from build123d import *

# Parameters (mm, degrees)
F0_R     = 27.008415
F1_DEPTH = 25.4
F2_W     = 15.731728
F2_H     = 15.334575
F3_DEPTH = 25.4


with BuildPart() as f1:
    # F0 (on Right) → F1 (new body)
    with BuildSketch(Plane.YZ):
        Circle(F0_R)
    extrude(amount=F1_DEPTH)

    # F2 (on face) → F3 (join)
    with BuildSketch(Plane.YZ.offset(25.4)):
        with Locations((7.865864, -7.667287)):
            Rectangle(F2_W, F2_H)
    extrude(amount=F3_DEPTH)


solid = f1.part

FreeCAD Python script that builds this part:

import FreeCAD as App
import Part
import Sketcher
from FreeCAD import Vector
Q = App.Units.Quantity

doc = App.newDocument("Part")
body = doc.addObject("PartDesign::Body", "Body")

sketch1 = body.newObject("Sketcher::SketchObject", "Sketch")
sketch1.AttachmentSupport = (doc.getObject("YZ_Plane"), [""])
sketch1.MapMode = "FlatFace"
sketch1.addGeometry(Part.Circle(Vector(0, 0, 0), Vector(0, 0, 1), 27.008415), False)
sketch1.addConstraint([
    Sketcher.Constraint("Coincident", 0, 3, -1, 1),
    Sketcher.Constraint("Diameter", 0, 54.01683),
])
pad1 = body.newObject("PartDesign::Pad", "Pad")
pad1.Profile = sketch1
pad1.Length = Q("1 in")

sketch2 = body.newObject("Sketcher::SketchObject", "Sketch001")
sketch2.AttachmentSupport = (doc.getObject("YZ_Plane"), [""])
sketch2.MapMode = "FlatFace"
sketch2.AttachmentOffset = App.Placement(Vector(0, 0, 1 * 25.4), App.Rotation())
sketch2.addGeometry([
    Part.LineSegment(Vector(0, 0, 0), Vector(0, -15.334575, 0)),
    Part.LineSegment(Vector(0, -15.334575, 0), Vector(15.731728, -15.334575, 0)),
    Part.LineSegment(Vector(15.731728, -15.334575, 0), Vector(15.731728, 0, 0)),
    Part.LineSegment(Vector(15.731728, 0, 0), Vector(0, 0, 0)),
], False)
sketch2.addConstraint([
    Sketcher.Constraint("Coincident", 0, 2, 1, 1),
    Sketcher.Constraint("Coincident", 1, 2, 2, 1),
    Sketcher.Constraint("Coincident", 2, 2, 3, 1),
    Sketcher.Constraint("Coincident", 3, 2, 0, 1),
    Sketcher.Constraint("Vertical", 0),
    Sketcher.Constraint("Horizontal", 1),
    Sketcher.Constraint("Vertical", 2),
    Sketcher.Constraint("Horizontal", 3),
    Sketcher.Constraint("Coincident", 3, 2, -1, 1),
    Sketcher.Constraint("DistanceX", 1, 1, 1, 2, 15.731728),
    Sketcher.Constraint("DistanceY", 0, 2, 0, 1, 15.334575),
])
pad2 = body.newObject("PartDesign::Pad", "Pad001")
pad2.Profile = sketch2
pad2.Length = Q("1 in")

doc.recompute()
